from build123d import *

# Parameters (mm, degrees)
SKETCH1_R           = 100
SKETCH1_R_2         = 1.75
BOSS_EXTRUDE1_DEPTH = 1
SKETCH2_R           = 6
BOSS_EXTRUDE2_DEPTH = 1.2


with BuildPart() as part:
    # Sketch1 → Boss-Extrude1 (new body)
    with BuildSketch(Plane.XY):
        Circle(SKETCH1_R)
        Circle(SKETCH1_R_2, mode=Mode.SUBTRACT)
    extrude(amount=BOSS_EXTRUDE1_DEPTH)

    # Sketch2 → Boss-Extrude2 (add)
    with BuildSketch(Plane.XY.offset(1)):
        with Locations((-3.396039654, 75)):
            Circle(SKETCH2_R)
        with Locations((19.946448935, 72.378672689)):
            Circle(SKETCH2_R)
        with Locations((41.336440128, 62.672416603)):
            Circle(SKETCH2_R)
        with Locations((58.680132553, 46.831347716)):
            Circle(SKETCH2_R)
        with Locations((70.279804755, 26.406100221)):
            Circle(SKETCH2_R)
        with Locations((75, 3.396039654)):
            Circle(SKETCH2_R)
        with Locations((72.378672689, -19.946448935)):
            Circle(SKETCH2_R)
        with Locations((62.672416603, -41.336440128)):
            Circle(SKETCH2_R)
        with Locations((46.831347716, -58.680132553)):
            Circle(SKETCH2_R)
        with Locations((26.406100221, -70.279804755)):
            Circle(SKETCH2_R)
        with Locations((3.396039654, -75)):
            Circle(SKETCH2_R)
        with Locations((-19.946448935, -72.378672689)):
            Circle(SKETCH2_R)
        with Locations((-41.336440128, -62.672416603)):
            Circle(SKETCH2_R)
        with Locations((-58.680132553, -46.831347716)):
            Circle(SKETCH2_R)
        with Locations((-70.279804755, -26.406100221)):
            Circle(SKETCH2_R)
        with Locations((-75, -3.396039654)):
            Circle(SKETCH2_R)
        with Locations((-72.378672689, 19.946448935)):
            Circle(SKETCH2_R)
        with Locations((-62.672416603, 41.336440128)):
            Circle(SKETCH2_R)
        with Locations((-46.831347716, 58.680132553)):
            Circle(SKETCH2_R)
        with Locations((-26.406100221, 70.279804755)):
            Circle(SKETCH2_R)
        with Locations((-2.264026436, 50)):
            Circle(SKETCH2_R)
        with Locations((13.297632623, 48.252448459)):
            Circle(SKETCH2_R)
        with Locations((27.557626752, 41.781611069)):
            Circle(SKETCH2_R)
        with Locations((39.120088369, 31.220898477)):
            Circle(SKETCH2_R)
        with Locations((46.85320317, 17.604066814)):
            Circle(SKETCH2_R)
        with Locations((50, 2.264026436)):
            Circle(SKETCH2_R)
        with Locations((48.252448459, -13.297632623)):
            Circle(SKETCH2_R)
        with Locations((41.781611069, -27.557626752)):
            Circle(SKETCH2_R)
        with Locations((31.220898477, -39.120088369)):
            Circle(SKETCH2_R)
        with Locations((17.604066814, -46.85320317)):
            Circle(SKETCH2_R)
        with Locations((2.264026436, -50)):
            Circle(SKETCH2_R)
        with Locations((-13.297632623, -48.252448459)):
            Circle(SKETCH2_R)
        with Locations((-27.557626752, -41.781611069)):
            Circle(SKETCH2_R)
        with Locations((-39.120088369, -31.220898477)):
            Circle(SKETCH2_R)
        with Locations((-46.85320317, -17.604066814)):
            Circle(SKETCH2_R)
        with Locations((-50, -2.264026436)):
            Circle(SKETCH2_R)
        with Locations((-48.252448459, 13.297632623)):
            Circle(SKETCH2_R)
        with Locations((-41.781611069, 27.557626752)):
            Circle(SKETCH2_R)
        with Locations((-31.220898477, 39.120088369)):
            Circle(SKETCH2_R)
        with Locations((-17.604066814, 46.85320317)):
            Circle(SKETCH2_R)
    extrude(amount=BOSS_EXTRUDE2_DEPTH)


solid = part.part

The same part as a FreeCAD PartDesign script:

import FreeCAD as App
import Part
import Sketcher

doc = App.newDocument("Part")
params = doc.addObject("Spreadsheet::Sheet", "Params")
for row, (alias, value) in enumerate([
    ("sketch1_diameter", "200 mm"),
    ("sketch1_diameter2", "3.5 mm"),
    ("pad1_length", "1 mm"),
    ("sketch2_diameter", "12 mm"),
    ("pad2_length", "1.2 mm"),
], start=1):
    params.set(f"A{row}", alias)
    params.set(f"B{row}", "=" + value)
    params.setAlias(f"B{row}", alias)

body = doc.addObject("PartDesign::Body", "Body")

# Sketch on XY plane
sketch1 = doc.addObject("Sketcher::SketchObject", "Sketch")
body.addObject(sketch1)
sketch1.AttachmentSupport = (doc.XY_Plane, [""])
sketch1.MapMode = "FlatFace"
sketch1.addGeometry([
    Part.Circle(App.Vector(0, 0, 0), App.Vector(0, 0, 1), 100),
    Part.Circle(App.Vector(0, 0, 0), App.Vector(0, 0, 1), 1.75),
], False)
sketch1.addConstraint([
    Sketcher.Constraint("Coincident", 0, 3, -1, 1),
    Sketcher.Constraint("Coincident", 1, 3, -1, 1),
    Sketcher.Constraint("Diameter", 0, 200.0),
    Sketcher.Constraint("Diameter", 1, 3.5),
])
sketch1.setExpression("Constraints[2]", "Params.sketch1_diameter")
sketch1.setExpression("Constraints[3]", "Params.sketch1_diameter2")
pad1 = doc.addObject("PartDesign::Pad", "Pad")
body.addObject(pad1)
pad1.Profile = sketch1
pad1.setExpression("Length", "Params.pad1_length")

# Sketch on XY plane
sketch2 = doc.addObject("Sketcher::SketchObject", "Sketch001")
body.addObject(sketch2)
sketch2.AttachmentSupport = (doc.XY_Plane, [""])
sketch2.MapMode = "FlatFace"
sketch2.AttachmentOffset = App.Placement(App.Vector(0, 0, 1), App.Rotation())
sketch2.addGeometry([
    Part.Circle(App.Vector(-3.39604, 75, 0), App.Vector(0, 0, 1), 6),  # 0
    Part.Circle(App.Vector(19.946449, 72.378673, 0), App.Vector(0, 0, 1), 6),  # 1
    Part.Circle(App.Vector(41.33644, 62.672417, 0), App.Vector(0, 0, 1), 6),  # 2
    Part.Circle(App.Vector(58.680133, 46.831348, 0), App.Vector(0, 0, 1), 6),  # 3
    Part.Circle(App.Vector(70.279805, 26.4061, 0), App.Vector(0, 0, 1), 6),  # 4
    Part.Circle(App.Vector(75, 3.39604, 0), App.Vector(0, 0, 1), 6),  # 5
    Part.Circle(App.Vector(72.378673, -19.946449, 0), App.Vector(0, 0, 1), 6),  # 6
    Part.Circle(App.Vector(62.672417, -41.33644, 0), App.Vector(0, 0, 1), 6),  # 7
    Part.Circle(App.Vector(46.831348, -58.680133, 0), App.Vector(0, 0, 1), 6),  # 8
    Part.Circle(App.Vector(26.4061, -70.279805, 0), App.Vector(0, 0, 1), 6),  # 9
    Part.Circle(App.Vector(3.39604, -75, 0), App.Vector(0, 0, 1), 6),  # 10
    Part.Circle(App.Vector(-19.946449, -72.378673, 0), App.Vector(0, 0, 1), 6),  # 11
    Part.Circle(App.Vector(-41.33644, -62.672417, 0), App.Vector(0, 0, 1), 6),  # 12
    Part.Circle(App.Vector(-58.680133, -46.831348, 0), App.Vector(0, 0, 1), 6),  # 13
    Part.Circle(App.Vector(-70.279805, -26.4061, 0), App.Vector(0, 0, 1), 6),  # 14
    Part.Circle(App.Vector(-75, -3.39604, 0), App.Vector(0, 0, 1), 6),  # 15
    Part.Circle(App.Vector(-72.378673, 19.946449, 0), App.Vector(0, 0, 1), 6),  # 16
    Part.Circle(App.Vector(-62.672417, 41.33644, 0), App.Vector(0, 0, 1), 6),  # 17
    Part.Circle(App.Vector(-46.831348, 58.680133, 0), App.Vector(0, 0, 1), 6),  # 18
    Part.Circle(App.Vector(-26.4061, 70.279805, 0), App.Vector(0, 0, 1), 6),  # 19
    Part.Circle(App.Vector(-2.264026, 50, 0), App.Vector(0, 0, 1), 6),  # 20
    Part.Circle(App.Vector(13.297633, 48.252448, 0), App.Vector(0, 0, 1), 6),  # 21
    Part.Circle(App.Vector(27.557627, 41.781611, 0), App.Vector(0, 0, 1), 6),  # 22
    Part.Circle(App.Vector(39.120088, 31.220898, 0), App.Vector(0, 0, 1), 6),  # 23
    Part.Circle(App.Vector(46.853203, 17.604067, 0), App.Vector(0, 0, 1), 6),  # 24
    Part.Circle(App.Vector(50, 2.264026, 0), App.Vector(0, 0, 1), 6),  # 25
    Part.Circle(App.Vector(48.252448, -13.297633, 0), App.Vector(0, 0, 1), 6),  # 26
    Part.Circle(App.Vector(41.781611, -27.557627, 0), App.Vector(0, 0, 1), 6),  # 27
    Part.Circle(App.Vector(31.220898, -39.120088, 0), App.Vector(0, 0, 1), 6),  # 28
    Part.Circle(App.Vector(17.604067, -46.853203, 0), App.Vector(0, 0, 1), 6),  # 29
    Part.Circle(App.Vector(2.264026, -50, 0), App.Vector(0, 0, 1), 6),  # 30
    Part.Circle(App.Vector(-13.297633, -48.252448, 0), App.Vector(0, 0, 1), 6),  # 31
    Part.Circle(App.Vector(-27.557627, -41.781611, 0), App.Vector(0, 0, 1), 6),  # 32
    Part.Circle(App.Vector(-39.120088, -31.220898, 0), App.Vector(0, 0, 1), 6),  # 33
    Part.Circle(App.Vector(-46.853203, -17.604067, 0), App.Vector(0, 0, 1), 6),  # 34
    Part.Circle(App.Vector(-50, -2.264026, 0), App.Vector(0, 0, 1), 6),  # 35
    Part.Circle(App.Vector(-48.252448, 13.297633, 0), App.Vector(0, 0, 1), 6),  # 36
    Part.Circle(App.Vector(-41.781611, 27.557627, 0), App.Vector(0, 0, 1), 6),  # 37
    Part.Circle(App.Vector(-31.220898, 39.120088, 0), App.Vector(0, 0, 1), 6),  # 38
    Part.Circle(App.Vector(-17.604067, 46.853203, 0), App.Vector(0, 0, 1), 6),  # 39
], False)
sketch2.addConstraint([
    Sketcher.Constraint("Equal", 0, 1),
    Sketcher.Constraint("Equal", 1, 2),
    Sketcher.Constraint("Equal", 2, 3),
    Sketcher.Constraint("Equal", 3, 4),
    Sketcher.Constraint("Equal", 4, 5),
    Sketcher.Constraint("Equal", 5, 6),
    Sketcher.Constraint("Equal", 6, 7),
    Sketcher.Constraint("Equal", 7, 8),
    Sketcher.Constraint("Equal", 8, 9),
    Sketcher.Constraint("Equal", 9, 10),
    Sketcher.Constraint("Equal", 10, 11),
    Sketcher.Constraint("Equal", 11, 12),
    Sketcher.Constraint("Equal", 12, 13),
    Sketcher.Constraint("Equal", 13, 14),
    Sketcher.Constraint("Equal", 14, 15),
    Sketcher.Constraint("Equal", 15, 16),
    Sketcher.Constraint("Equal", 16, 17),
    Sketcher.Constraint("Equal", 17, 18),
    Sketcher.Constraint("Equal", 18, 19),
    Sketcher.Constraint("Equal", 19, 20),
    Sketcher.Constraint("Equal", 20, 21),
    Sketcher.Constraint("Equal", 21, 22),
    Sketcher.Constraint("Equal", 22, 23),
    Sketcher.Constraint("Equal", 23, 24),
    Sketcher.Constraint("Equal", 24, 25),
    Sketcher.Constraint("Equal", 25, 26),
    Sketcher.Constraint("Equal", 26, 27),
    Sketcher.Constraint("Equal", 27, 28),
    Sketcher.Constraint("Equal", 28, 29),
    Sketcher.Constraint("Equal", 29, 30),
    Sketcher.Constraint("Equal", 30, 31),
    Sketcher.Constraint("Equal", 31, 32),
    Sketcher.Constraint("Equal", 32, 33),
    Sketcher.Constraint("Equal", 33, 34),
    Sketcher.Constraint("Equal", 34, 35),
    Sketcher.Constraint("Equal", 35, 36),
    Sketcher.Constraint("Equal", 36, 37),
    Sketcher.Constraint("Equal", 37, 38),
    Sketcher.Constraint("Equal", 38, 39),
    Sketcher.Constraint("Symmetric", 0, 3, 10, 3, -1, 1),
    Sketcher.Constraint("Symmetric", 1, 3, 11, 3, -1, 1),
    Sketcher.Constraint("Symmetric", 2, 3, 12, 3, -1, 1),
    Sketcher.Constraint("Symmetric", 3, 3, 13, 3, -1, 1),
    Sketcher.Constraint("Symmetric", 4, 3, 14, 3, -1, 1),
    Sketcher.Constraint("Symmetric", 5, 3, 15, 3, -1, 1),
    Sketcher.Constraint("Symmetric", 6, 3, 16, 3, -1, 1),
    Sketcher.Constraint("Symmetric", 7, 3, 17, 3, -1, 1),
    Sketcher.Constraint("Symmetric", 8, 3, 18, 3, -1, 1),
    Sketcher.Constraint("Symmetric", 9, 3, 19, 3, -1, 1),
    Sketcher.Constraint("Symmetric", 20, 3, 30, 3, -1, 1),
    Sketcher.Constraint("Symmetric", 21, 3, 31, 3, -1, 1),
    Sketcher.Constraint("Symmetric", 22, 3, 32, 3, -1, 1),
    Sketcher.Constraint("Symmetric", 23, 3, 33, 3, -1, 1),
    Sketcher.Constraint("Symmetric", 24, 3, 34, 3, -1, 1),
    Sketcher.Constraint("Symmetric", 25, 3, 35, 3, -1, 1),
    Sketcher.Constraint("Symmetric", 26, 3, 36, 3, -1, 1),
    Sketcher.Constraint("Symmetric", 27, 3, 37, 3, -1, 1),
    Sketcher.Constraint("Symmetric", 28, 3, 38, 3, -1, 1),
    Sketcher.Constraint("Symmetric", 29, 3, 39, 3, -1, 1),
    Sketcher.Constraint("Diameter", 0, 12.0),
    Sketcher.Constraint("DistanceY", -1, 1, 0, 3, 75.0),
    Sketcher.Constraint("DistanceX", -1, 1, 5, 3, 75.0),
    Sketcher.Constraint("DistanceY", -1, 1, 20, 3, 50.0),
    Sketcher.Constraint("DistanceX", -1, 1, 25, 3, 50.0),
    Sketcher.Constraint("DistanceY", -1, 1, 4, 3, 26.4061),
    Sketcher.Constraint("DistanceX", -1, 1, 9, 3, 26.4061),
    Sketcher.Constraint("DistanceY", -1, 1, 23, 3, 31.220898),
    Sketcher.Constraint("DistanceX", -1, 1, 28, 3, 31.220898),
    Sketcher.Constraint("DistanceX", 24, 3, 4, 3, 23.426602),
    Sketcher.Constraint("DistanceY", 26, 3, 24, 3, 30.901699),
    Sketcher.Constraint("DistanceY", 9, 3, 29, 3, 23.426602),
    Sketcher.Constraint("DistanceX", 31, 3, 29, 3, 30.901699),
    Sketcher.Constraint("DistanceX", 0, 3, -1, 1, 3.39604),
    Sketcher.Constraint("DistanceX", -1, 1, 1, 3, 19.946449),
    Sketcher.Constraint("DistanceX", -1, 1, 2, 3, 41.33644),
    Sketcher.Constraint("DistanceY", -1, 1, 5, 3, 3.39604),
    Sketcher.Constraint("DistanceY", 6, 3, -1, 1, 19.946449),
    Sketcher.Constraint("DistanceY", 7, 3, -1, 1, 41.33644),
    Sketcher.Constraint("DistanceY", -1, 1, 21, 3, 48.252448),
    Sketcher.Constraint("DistanceY", -1, 1, 22, 3, 41.781611),
    Sketcher.Constraint("DistanceX", -1, 1, 23, 3, 39.120088),
    Sketcher.Constraint("DistanceX", -1, 1, 26, 3, 48.252448),
    Sketcher.Constraint("DistanceX", -1, 1, 27, 3, 41.781611),
    Sketcher.Constraint("DistanceY", 28, 3, -1, 1, 39.120088),
    Sketcher.Constraint("DistanceY", 3, 3, 2, 3, 15.841069),
    Sketcher.Constraint("DistanceY", 5, 3, 3, 3, 43.435308),
    Sketcher.Constraint("DistanceX", 3, 3, 6, 3, 13.69854),
    Sketcher.Constraint("DistanceY", 6, 3, 1, 3, 92.325122),
    Sketcher.Constraint("DistanceX", 7, 3, 4, 3, 7.607388),
    Sketcher.Constraint("DistanceX", 8, 3, 7, 3, 15.841069),
    Sketcher.Constraint("DistanceY", 8, 3, 3, 3, 105.51148),
    Sketcher.Constraint("DistanceX", 10, 3, 8, 3, 43.435308),
    Sketcher.Constraint("DistanceX", 11, 3, 6, 3, 92.325122),
    Sketcher.Constraint("DistanceY", 9, 3, 12, 3, 7.607388),
    Sketcher.Constraint("DistanceX", 18, 3, 20, 3, 44.567321),
    Sketcher.Constraint("DistanceX", 20, 3, 21, 3, 15.561659),
    Sketcher.Constraint("DistanceX", 22, 3, 23, 3, 11.562462),
    Sketcher.Constraint("DistanceY", 24, 3, 23, 3, 13.616832),
    Sketcher.Constraint("DistanceY", 25, 3, 24, 3, 15.34004),
    Sketcher.Constraint("DistanceY", 28, 3, 27, 3, 11.562462),
])
sketch2.setExpression("Constraints[59]", "Params.sketch2_diameter")
pad2 = doc.addObject("PartDesign::Pad", "Pad001")
body.addObject(pad2)
pad2.Profile = sketch2
pad2.setExpression("Length", "Params.pad2_length")

doc.recompute()
